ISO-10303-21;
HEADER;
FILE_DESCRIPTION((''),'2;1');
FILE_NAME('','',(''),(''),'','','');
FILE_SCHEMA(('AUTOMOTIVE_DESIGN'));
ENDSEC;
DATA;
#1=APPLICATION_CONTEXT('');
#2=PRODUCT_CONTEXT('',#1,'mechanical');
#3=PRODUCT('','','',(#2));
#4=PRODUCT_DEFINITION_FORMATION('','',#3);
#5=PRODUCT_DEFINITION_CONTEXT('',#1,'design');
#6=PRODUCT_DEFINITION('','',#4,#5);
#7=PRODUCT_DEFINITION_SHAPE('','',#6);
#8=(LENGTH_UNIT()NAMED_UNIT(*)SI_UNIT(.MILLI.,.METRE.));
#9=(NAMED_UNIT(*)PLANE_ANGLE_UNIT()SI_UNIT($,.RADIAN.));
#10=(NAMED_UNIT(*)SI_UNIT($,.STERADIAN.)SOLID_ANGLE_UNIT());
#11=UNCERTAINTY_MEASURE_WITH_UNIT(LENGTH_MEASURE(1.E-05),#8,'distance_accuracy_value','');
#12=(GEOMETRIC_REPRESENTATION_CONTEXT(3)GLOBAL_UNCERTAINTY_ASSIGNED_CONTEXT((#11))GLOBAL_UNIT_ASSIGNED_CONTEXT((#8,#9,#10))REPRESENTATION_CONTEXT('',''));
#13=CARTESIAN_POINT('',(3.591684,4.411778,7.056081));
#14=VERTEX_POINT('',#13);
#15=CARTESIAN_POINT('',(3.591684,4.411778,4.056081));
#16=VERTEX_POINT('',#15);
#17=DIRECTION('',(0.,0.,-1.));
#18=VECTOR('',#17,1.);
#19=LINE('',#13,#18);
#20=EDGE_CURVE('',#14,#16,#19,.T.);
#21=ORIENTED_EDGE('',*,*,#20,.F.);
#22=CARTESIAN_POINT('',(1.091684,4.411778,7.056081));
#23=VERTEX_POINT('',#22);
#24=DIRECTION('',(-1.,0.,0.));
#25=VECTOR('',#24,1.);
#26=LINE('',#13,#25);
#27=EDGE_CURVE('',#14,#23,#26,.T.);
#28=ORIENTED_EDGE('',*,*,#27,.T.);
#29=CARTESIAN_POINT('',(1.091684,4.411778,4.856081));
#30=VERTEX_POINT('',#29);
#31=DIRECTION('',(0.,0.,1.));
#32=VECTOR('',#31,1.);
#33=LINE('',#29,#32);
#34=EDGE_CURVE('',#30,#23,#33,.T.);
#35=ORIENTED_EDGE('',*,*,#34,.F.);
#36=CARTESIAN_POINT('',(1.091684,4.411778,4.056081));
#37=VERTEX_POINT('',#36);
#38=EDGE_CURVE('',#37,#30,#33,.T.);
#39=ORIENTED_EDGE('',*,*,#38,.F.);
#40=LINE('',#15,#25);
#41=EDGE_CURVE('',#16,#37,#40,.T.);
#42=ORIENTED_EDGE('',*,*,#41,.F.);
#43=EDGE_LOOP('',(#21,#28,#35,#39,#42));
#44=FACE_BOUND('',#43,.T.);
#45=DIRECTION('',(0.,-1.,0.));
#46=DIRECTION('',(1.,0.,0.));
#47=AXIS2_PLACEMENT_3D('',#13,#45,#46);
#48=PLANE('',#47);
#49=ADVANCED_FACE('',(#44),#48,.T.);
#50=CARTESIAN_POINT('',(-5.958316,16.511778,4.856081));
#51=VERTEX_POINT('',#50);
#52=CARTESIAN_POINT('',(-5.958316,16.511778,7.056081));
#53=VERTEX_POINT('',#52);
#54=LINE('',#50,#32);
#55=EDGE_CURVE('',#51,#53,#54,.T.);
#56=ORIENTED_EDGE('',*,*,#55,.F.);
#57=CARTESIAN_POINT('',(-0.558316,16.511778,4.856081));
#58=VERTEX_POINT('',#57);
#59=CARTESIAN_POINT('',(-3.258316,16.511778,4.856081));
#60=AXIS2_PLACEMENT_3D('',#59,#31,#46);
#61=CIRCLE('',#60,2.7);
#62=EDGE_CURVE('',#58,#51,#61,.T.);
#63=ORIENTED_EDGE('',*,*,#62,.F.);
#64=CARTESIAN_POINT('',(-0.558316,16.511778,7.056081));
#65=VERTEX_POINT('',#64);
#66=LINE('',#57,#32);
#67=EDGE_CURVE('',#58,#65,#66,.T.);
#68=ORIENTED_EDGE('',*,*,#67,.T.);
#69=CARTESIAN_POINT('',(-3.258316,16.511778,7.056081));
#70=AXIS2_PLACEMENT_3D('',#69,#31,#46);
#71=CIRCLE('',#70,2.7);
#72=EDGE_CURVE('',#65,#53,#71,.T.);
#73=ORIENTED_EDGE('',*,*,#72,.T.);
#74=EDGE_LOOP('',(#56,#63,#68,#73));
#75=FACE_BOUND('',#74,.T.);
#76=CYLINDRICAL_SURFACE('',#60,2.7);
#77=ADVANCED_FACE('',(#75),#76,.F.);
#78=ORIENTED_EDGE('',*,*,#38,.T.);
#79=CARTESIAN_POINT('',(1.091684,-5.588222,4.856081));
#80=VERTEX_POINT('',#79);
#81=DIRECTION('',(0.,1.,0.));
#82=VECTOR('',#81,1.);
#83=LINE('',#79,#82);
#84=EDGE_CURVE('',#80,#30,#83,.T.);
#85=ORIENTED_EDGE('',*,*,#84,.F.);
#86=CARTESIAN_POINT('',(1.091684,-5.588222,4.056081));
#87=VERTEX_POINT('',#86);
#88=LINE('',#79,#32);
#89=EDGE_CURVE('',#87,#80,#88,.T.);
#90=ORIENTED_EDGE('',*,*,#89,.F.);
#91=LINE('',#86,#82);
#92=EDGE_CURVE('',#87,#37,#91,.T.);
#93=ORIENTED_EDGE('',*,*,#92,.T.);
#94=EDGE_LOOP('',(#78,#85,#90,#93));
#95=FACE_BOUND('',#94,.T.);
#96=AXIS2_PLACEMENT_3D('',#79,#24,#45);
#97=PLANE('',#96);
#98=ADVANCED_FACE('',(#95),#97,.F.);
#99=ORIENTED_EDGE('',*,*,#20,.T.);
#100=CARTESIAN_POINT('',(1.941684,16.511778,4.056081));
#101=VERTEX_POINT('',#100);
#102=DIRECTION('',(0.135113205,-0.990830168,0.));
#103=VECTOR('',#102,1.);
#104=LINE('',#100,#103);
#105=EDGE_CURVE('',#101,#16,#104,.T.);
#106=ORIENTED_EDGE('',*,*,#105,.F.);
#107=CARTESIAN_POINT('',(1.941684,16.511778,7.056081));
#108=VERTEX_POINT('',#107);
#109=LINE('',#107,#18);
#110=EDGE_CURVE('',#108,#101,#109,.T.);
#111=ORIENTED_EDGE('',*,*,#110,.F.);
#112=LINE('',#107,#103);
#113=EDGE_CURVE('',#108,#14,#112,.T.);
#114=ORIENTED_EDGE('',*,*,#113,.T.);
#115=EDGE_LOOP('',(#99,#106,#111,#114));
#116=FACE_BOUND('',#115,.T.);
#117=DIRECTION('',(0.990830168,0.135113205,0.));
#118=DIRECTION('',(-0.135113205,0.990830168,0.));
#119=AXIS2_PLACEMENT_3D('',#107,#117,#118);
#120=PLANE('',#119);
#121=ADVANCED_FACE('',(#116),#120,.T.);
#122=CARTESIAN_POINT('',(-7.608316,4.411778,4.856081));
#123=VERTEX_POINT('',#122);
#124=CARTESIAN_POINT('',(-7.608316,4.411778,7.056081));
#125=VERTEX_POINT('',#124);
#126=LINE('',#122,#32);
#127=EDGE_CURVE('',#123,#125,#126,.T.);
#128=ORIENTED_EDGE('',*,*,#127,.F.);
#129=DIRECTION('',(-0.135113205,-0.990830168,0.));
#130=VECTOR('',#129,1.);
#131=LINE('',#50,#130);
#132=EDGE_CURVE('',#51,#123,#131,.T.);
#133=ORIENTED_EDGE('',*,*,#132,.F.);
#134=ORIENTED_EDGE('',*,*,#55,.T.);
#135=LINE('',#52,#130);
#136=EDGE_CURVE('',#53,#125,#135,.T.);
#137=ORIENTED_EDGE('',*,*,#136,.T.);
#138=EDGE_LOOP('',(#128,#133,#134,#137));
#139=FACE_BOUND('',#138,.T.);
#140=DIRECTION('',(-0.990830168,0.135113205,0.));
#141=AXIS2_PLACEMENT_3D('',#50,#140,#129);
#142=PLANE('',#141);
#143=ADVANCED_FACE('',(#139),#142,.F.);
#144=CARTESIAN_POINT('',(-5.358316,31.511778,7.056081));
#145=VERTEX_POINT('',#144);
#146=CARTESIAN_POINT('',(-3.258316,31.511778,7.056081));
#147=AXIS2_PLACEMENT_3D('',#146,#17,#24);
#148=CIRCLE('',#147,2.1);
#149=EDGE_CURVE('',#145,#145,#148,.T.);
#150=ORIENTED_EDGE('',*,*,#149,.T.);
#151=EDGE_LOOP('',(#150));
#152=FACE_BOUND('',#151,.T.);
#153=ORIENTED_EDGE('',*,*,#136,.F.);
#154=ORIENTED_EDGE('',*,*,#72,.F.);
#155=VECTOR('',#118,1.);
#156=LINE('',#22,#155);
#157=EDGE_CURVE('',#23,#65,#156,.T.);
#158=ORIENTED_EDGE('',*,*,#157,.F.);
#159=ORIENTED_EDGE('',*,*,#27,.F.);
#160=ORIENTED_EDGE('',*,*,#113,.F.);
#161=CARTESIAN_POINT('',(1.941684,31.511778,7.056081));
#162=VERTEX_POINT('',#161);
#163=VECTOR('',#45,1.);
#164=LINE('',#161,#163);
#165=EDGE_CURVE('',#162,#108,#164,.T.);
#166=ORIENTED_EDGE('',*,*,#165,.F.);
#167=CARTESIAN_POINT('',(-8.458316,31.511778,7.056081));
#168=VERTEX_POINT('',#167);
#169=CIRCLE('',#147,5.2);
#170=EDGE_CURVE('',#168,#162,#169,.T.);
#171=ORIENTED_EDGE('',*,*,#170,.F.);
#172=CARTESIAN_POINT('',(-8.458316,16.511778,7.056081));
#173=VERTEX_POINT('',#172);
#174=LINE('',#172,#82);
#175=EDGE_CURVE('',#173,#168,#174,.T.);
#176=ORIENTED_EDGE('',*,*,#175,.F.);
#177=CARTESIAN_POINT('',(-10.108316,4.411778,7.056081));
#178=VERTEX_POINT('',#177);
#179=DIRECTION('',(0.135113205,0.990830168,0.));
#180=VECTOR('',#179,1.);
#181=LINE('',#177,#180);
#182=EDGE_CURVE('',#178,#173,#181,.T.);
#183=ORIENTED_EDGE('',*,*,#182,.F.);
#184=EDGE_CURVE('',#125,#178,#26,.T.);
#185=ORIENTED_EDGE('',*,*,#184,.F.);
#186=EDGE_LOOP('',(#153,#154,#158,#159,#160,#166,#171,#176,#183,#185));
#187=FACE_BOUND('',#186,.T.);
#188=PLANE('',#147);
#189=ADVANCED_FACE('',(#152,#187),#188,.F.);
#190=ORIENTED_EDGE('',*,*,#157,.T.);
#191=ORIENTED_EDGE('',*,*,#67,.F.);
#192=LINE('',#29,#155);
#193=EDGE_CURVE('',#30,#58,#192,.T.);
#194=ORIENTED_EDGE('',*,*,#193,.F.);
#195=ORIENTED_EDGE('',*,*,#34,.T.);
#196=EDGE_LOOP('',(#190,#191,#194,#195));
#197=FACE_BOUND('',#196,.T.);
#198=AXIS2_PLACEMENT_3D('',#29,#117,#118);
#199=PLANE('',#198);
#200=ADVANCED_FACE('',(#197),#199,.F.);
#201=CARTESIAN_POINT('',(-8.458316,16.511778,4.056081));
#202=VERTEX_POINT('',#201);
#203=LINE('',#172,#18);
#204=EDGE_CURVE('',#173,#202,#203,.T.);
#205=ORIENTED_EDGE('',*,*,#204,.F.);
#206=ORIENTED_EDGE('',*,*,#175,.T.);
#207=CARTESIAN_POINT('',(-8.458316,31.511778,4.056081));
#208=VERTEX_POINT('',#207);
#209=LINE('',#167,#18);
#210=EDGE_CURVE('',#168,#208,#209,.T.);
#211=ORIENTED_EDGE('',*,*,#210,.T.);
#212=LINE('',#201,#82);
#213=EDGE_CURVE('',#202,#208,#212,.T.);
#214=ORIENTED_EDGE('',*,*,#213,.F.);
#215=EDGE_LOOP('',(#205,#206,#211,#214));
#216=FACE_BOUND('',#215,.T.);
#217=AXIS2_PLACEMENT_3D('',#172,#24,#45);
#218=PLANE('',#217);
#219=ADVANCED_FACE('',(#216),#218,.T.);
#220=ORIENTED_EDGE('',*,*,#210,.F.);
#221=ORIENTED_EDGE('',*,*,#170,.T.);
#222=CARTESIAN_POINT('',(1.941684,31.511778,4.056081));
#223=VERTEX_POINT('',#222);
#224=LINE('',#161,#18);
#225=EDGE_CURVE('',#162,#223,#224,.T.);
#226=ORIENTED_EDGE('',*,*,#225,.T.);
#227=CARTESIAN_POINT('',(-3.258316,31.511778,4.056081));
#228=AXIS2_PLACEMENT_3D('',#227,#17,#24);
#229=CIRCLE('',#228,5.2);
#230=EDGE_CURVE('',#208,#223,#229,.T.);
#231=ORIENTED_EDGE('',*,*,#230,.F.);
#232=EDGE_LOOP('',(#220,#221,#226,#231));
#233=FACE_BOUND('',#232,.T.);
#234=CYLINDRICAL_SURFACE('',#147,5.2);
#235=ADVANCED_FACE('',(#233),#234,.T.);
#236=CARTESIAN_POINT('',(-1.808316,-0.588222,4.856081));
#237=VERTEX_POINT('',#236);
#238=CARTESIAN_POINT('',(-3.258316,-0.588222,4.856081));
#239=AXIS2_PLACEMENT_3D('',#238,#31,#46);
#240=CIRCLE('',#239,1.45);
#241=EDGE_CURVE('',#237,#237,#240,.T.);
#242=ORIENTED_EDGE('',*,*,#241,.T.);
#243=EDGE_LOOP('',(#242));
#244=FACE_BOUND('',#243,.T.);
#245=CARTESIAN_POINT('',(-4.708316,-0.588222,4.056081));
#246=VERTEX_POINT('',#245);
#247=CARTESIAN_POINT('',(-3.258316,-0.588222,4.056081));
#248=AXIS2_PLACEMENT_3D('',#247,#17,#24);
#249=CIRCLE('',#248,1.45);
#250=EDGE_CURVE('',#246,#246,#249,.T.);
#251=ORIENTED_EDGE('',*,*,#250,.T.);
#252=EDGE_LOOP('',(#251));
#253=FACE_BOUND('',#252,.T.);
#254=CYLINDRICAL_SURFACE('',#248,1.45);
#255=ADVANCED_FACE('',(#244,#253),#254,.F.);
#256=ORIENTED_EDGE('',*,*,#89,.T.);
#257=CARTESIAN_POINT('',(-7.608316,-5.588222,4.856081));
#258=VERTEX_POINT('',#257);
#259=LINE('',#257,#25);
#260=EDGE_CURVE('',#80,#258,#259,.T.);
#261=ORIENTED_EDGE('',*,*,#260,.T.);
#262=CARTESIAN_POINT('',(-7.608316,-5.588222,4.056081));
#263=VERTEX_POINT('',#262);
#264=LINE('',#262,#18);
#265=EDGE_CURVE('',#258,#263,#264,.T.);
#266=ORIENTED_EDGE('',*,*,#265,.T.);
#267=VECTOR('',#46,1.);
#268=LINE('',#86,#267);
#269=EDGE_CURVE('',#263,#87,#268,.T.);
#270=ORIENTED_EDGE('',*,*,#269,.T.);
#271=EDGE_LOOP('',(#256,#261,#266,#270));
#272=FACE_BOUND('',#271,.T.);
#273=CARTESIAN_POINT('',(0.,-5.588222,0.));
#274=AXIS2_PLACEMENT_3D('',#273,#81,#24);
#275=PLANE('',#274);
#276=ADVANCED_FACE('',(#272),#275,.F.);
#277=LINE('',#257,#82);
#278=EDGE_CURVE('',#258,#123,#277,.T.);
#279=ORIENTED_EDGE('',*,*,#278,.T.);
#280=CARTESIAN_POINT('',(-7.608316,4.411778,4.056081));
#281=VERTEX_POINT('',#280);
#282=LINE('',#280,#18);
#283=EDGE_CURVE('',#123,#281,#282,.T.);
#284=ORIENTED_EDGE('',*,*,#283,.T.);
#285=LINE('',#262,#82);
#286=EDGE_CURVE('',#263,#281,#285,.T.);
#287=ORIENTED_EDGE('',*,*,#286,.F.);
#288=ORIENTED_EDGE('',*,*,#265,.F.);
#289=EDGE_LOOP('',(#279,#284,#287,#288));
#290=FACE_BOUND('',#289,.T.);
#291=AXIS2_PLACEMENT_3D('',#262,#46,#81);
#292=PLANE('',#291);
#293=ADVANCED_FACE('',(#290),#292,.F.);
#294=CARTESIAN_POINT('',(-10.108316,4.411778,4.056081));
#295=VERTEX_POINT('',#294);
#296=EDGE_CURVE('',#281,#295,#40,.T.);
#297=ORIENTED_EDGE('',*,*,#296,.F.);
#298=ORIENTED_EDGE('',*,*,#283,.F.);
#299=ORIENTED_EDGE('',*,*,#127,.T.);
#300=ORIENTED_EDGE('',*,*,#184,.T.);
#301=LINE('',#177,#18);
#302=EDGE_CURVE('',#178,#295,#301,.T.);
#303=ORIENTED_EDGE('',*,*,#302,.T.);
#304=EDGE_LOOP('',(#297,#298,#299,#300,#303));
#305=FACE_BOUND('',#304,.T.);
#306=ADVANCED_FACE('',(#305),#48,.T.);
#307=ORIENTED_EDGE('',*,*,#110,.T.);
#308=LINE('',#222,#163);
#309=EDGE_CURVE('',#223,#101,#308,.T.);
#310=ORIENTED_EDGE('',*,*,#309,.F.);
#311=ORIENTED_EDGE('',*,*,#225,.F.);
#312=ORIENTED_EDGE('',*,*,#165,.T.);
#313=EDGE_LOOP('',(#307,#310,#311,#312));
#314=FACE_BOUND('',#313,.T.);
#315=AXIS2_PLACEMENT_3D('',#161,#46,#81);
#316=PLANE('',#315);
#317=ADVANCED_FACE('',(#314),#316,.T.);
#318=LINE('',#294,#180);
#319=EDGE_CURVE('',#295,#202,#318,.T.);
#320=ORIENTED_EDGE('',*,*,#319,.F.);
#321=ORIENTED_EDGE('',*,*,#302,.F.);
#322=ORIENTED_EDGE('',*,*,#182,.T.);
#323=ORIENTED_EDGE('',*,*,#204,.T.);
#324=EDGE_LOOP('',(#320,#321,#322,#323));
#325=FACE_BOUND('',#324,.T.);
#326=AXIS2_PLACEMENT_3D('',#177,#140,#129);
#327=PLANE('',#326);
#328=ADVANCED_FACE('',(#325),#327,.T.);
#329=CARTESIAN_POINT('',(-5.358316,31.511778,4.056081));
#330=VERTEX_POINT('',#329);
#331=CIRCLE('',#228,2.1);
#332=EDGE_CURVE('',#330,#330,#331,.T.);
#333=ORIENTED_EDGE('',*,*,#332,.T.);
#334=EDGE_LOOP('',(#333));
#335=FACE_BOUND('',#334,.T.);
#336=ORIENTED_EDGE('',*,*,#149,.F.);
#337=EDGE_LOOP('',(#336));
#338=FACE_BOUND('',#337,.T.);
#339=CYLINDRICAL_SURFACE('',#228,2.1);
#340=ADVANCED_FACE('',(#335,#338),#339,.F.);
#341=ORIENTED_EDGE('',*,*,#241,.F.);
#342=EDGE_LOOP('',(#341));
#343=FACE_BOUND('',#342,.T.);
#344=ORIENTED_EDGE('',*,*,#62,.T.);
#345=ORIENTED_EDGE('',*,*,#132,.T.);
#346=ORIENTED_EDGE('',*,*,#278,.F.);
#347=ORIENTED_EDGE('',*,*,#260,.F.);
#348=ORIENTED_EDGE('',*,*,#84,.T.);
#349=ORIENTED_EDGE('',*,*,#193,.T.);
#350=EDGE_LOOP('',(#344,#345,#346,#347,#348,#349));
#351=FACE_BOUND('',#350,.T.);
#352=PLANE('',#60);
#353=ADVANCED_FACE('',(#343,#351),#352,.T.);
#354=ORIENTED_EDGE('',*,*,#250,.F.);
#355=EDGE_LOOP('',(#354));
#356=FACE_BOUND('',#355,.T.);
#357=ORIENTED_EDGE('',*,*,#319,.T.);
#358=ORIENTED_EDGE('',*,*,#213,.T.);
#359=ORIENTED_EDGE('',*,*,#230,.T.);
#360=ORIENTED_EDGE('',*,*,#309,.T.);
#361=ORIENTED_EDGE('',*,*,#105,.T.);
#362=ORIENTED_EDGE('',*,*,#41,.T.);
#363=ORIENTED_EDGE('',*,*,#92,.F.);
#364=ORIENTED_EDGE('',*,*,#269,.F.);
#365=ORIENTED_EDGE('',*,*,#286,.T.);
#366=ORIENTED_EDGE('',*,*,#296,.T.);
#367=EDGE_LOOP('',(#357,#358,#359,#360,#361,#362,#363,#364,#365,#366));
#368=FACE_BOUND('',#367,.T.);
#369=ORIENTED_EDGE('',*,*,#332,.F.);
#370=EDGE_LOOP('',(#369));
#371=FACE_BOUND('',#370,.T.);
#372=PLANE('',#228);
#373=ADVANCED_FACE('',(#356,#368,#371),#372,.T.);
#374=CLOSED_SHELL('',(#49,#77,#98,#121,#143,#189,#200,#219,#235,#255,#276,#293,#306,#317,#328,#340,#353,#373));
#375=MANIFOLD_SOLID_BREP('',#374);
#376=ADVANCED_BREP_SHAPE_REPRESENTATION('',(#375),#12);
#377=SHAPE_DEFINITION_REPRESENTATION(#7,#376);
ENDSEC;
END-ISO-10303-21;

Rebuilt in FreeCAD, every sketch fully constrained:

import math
import FreeCAD as App
import Part
import Sketcher

V = App.Vector


def add_polygon(sketch, points):
    """Adds a closed chain of lines whose ends are joined by coincident constraints."""
    first, n = sketch.GeometryCount, len(points)
    for a, b in zip(points, points[1:] + points[:1]):
        sketch.addGeometry(Part.LineSegment(App.Vector(*a, 0), App.Vector(*b, 0)), False)
    for i in range(n):
        sketch.addConstraint(Sketcher.Constraint("Coincident", first + i, 2, first + (i + 1) % n, 1))

doc = App.newDocument("Part")
body = doc.addObject("PartDesign::Body", "Body")

# Sketch on XY plane
sketch1 = doc.addObject("Sketcher::SketchObject", "Sketch")
body.addObject(sketch1)
sketch1.AttachmentSupport = (doc.XY_Plane, [""])
sketch1.MapMode = "FlatFace"
sketch1.AttachmentOffset = App.Placement(V(0, 0, 4.056081), App.Rotation())
sketch1.addGeometry([
    Part.LineSegment(V(2, 17, 0), V(4, 4, 0)),  # 0
    Part.LineSegment(V(4, 4, 0), V(-10, 4, 0)),  # 1
    Part.LineSegment(V(-10, 4, 0), V(-8, 17, 0)),  # 2
    Part.LineSegment(V(-8, 17, 0), V(-8, 32, 0)),  # 3
    Part.ArcOfCircle(Part.Circle(V(-3, 32, 0), V(0, 0, 1), 5), math.radians(0), math.radians(180)),  # 4
    Part.LineSegment(V(2, 32, 0), V(2, 17, 0)),  # 5
], False)
sketch1.addConstraint([
    Sketcher.Constraint("Coincident", 0, 2, 1, 1),
    Sketcher.Constraint("Coincident", 1, 2, 2, 1),
    Sketcher.Constraint("Coincident", 2, 2, 3, 1),
    Sketcher.Constraint("Tangent", 3, 2, 4, 2),
    Sketcher.Constraint("Tangent", 4, 1, 5, 1),
    Sketcher.Constraint("Coincident", 5, 2, 0, 1),
    Sketcher.Constraint("Horizontal", 1),
    Sketcher.Constraint("Vertical", 3),
    Sketcher.Constraint("Vertical", 5),
    Sketcher.Constraint("Horizontal", 2, 2, 5, 2),
    Sketcher.Constraint("Equal", 0, 2),
    Sketcher.Constraint("Radius", 4, 5.2),
    Sketcher.Constraint("DistanceY", 3, 1, 3, 2, 15.0),
    Sketcher.Constraint("DistanceX", 1, 2, 1, 1, 13.7),
    Sketcher.Constraint("DistanceY", 0, 2, 4, 3, 27.1),
    Sketcher.Constraint("DistanceY", -1, 1, 4, 3, 31.511778),
    Sketcher.Constraint("DistanceX", 4, 3, -1, 1, 3.258316),
])
pad1 = doc.addObject("PartDesign::Pad", "Pad")
body.addObject(pad1)
pad1.Profile = sketch1
pad1.Length = 3

# Sketch on XY plane
sketch2 = doc.addObject("Sketcher::SketchObject", "Sketch001")
body.addObject(sketch2)
sketch2.AttachmentSupport = (doc.XY_Plane, [""])
sketch2.MapMode = "FlatFace"
sketch2.AttachmentOffset = App.Placement(V(0, 0, 7.056081), App.Rotation())
sketch2.addGeometry([
    Part.LineSegment(V(1.1, 4.4, 0), V(-0.6, 16.5, 0)),
    Part.ArcOfCircle(Part.Circle(V(-3.3, 16.5, 0), V(0, 0, 1), 2.7), math.radians(0), math.radians(180)),
    Part.LineSegment(V(-6, 16.5, 0), V(-7.6, 4.4, 0)),
    Part.LineSegment(V(-7.6, 4.4, 0), V(1.1, 4.4, 0)),
], False)
sketch2.addConstraint([
    Sketcher.Constraint("Coincident", 0, 2, 1, 1),
    Sketcher.Constraint("Coincident", 1, 2, 2, 1),
    Sketcher.Constraint("Coincident", 2, 2, 3, 1),
    Sketcher.Constraint("Coincident", 3, 2, 0, 1),
    Sketcher.Constraint("Horizontal", 3),
    Sketcher.Constraint("Horizontal", 1, 3, 0, 2),
    Sketcher.Constraint("Horizontal", 0, 2, 1, 2),
    Sketcher.Constraint("Equal", 0, 2),
    Sketcher.Constraint("Radius", 1, 2.7),
    Sketcher.Constraint("DistanceX", 3, 1, 3, 2, 8.7),
    Sketcher.Constraint("DistanceY", 2, 2, 1, 2, 12.1),
    Sketcher.Constraint("DistanceY", -1, 1, 1, 3, 16.511778),
    Sketcher.Constraint("DistanceX", 1, 3, -1, 1, 3.258316),
])
pocket1 = doc.addObject("PartDesign::Pocket", "Pocket")
body.addObject(pocket1)
pocket1.Profile = sketch2
pocket1.Length = 2.2

# Sketch on XZ plane
sketch3 = doc.addObject("Sketcher::SketchObject", "Sketch002")
body.addObject(sketch3)
sketch3.AttachmentSupport = (doc.XZ_Plane, [""])
sketch3.MapMode = "FlatFace"
sketch3.AttachmentOffset = App.Placement(V(0, 0, -4.411778), App.Rotation())
add_polygon(sketch3, [(-7.6, 4.9), (-7.6, 4.1), (1.1, 4.1), (1.1, 4.9)])  # lines 0-3
sketch3.addConstraint([
    Sketcher.Constraint("Vertical", 0),
    Sketcher.Constraint("Horizontal", 1),
    Sketcher.Constraint("Vertical", 2),
    Sketcher.Constraint("Horizontal", 3),
    Sketcher.Constraint("DistanceX", 1, 1, 1, 2, 8.7),
    Sketcher.Constraint("DistanceY", 0, 2, 0, 1, 0.8),
    Sketcher.Constraint("DistanceY", -1, 1, 0, 2, 4.056081),
    Sketcher.Constraint("DistanceX", 0, 2, -1, 1, 7.608316),
])
pad2 = doc.addObject("PartDesign::Pad", "Pad001")
body.addObject(pad2)
pad2.Profile = sketch3
pad2.Length = 10

# Sketch on XY plane
sketch4 = doc.addObject("Sketcher::SketchObject", "Sketch003")
body.addObject(sketch4)
sketch4.AttachmentSupport = (doc.XY_Plane, [""])
sketch4.MapMode = "FlatFace"
sketch4.AttachmentOffset = App.Placement(V(0, 0, 4.056081), App.Rotation())
sketch4.addGeometry(Part.Circle(V(-3.3, 31.5, 0), V(0, 0, 1), 2.1), False)
sketch4.addConstraint([
    Sketcher.Constraint("Diameter", 0, 4.2),
    Sketcher.Constraint("DistanceY", -1, 1, 0, 3, 31.511778),
    Sketcher.Constraint("DistanceX", 0, 3, -1, 1, 3.258316),
])
doc.recompute()
hole = doc.addObject("PartDesign::Hole", "Hole")
body.addObject(hole)
hole.Profile = sketch4
hole.ThreadType = "None"
hole.Diameter = 4.2
hole.DepthType = "ThroughAll"
hole.Reversed = True

# Sketch on XY plane
sketch5 = doc.addObject("Sketcher::SketchObject", "Sketch004")
body.addObject(sketch5)
sketch5.AttachmentSupport = (doc.XY_Plane, [""])
sketch5.MapMode = "FlatFace"
sketch5.AttachmentOffset = App.Placement(V(0, 0, 4.056081), App.Rotation())
sketch5.addGeometry(Part.Circle(V(-3.3, -0.6, 0), V(0, 0, 1), 1.4), False)
sketch5.addConstraint([
    Sketcher.Constraint("Diameter", 0, 2.9),
    Sketcher.Constraint("DistanceY", 0, 3, -1, 1, 0.588222),
    Sketcher.Constraint("DistanceX", 0, 3, -1, 1, 3.258316),
])
doc.recompute()
hole2 = doc.addObject("PartDesign::Hole", "Hole001")
body.addObject(hole2)
hole2.Profile = sketch5
hole2.ThreadType = "None"
hole2.Diameter = 2.9
hole2.DepthType = "ThroughAll"
hole2.Reversed = True

doc.recompute()
